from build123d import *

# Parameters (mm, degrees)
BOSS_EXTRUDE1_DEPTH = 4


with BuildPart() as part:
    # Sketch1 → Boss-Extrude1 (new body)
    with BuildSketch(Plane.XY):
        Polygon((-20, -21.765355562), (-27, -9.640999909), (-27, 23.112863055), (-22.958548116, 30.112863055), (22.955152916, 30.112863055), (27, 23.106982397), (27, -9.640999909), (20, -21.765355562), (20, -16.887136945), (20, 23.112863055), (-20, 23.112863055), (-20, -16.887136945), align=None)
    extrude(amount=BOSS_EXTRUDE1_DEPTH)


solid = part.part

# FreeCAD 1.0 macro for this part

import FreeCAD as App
import Part
import Sketcher
from FreeCAD import Vector
Q = App.Units.Quantity


def add_polygon(sketch, points):
    """Adds a closed chain of lines whose ends are joined by coincident constraints."""
    first, n = sketch.GeometryCount, len(points)
    for a, b in zip(points, points[1:] + points[:1]):
        sketch.addGeometry(Part.LineSegment(App.Vector(*a, 0), App.Vector(*b, 0)), False)
    for i in range(n):
        sketch.addConstraint(Sketcher.Constraint("Coincident", first + i, 2, first + (i + 1) % n, 1))

doc = App.newDocument("Part")
body = doc.addObject("PartDesign::Body", "Body")

sketch1 = body.newObject("Sketcher::SketchObject", "Sketch")
sketch1.AttachmentSupport = (doc.getObject("XY_Plane"), [""])
sketch1.MapMode = "FlatFace"
add_polygon(sketch1, [(-27, -10), (-20, -22), (-20, 23), (20, 23), (20, -22), (27, -10), (27, 23), (23, 30), (-23, 30), (-27, 23)])
sketch1.addConstraint([
    Sketcher.Constraint("Vertical", 1),
    Sketcher.Constraint("Horizontal", 2),
    Sketcher.Constraint("Vertical", 3),
    Sketcher.Constraint("Vertical", 5),
    Sketcher.Constraint("Horizontal", 7),
    Sketcher.Constraint("Vertical", 9),
    Sketcher.Constraint("Symmetric", 0, 2, 3, 2, -2),
    Sketcher.Constraint("Symmetric", 4, 2, 9, 2, -2),
    Sketcher.Constraint("Parallel", 0, 6),
    Sketcher.Constraint("Parallel", 4, 8),
    Sketcher.Constraint("Horizontal", 2, 2, 8, 2),
    Sketcher.Constraint("DistanceX", 2, 1, 2, 2, 40.0),
    Sketcher.Constraint("Angle", 0, Q("-60 deg")),
    Sketcher.Constraint("Distance", 0, 14.0),
    Sketcher.Constraint("DistanceY", 2, 2, 6, 2, 7.0),
    Sketcher.Constraint("DistanceX", 7, 2, 7, 1, 45.913701),
    Sketcher.Constraint("DistanceY", 4, 2, -1, 1, 9.641),
    Sketcher.Constraint("DistanceY", 1, 1, 1, 2, 44.878219),
])
pad1 = body.newObject("PartDesign::Pad", "Pad")
pad1.Profile = sketch1
pad1.Length = 4

doc.recompute()
